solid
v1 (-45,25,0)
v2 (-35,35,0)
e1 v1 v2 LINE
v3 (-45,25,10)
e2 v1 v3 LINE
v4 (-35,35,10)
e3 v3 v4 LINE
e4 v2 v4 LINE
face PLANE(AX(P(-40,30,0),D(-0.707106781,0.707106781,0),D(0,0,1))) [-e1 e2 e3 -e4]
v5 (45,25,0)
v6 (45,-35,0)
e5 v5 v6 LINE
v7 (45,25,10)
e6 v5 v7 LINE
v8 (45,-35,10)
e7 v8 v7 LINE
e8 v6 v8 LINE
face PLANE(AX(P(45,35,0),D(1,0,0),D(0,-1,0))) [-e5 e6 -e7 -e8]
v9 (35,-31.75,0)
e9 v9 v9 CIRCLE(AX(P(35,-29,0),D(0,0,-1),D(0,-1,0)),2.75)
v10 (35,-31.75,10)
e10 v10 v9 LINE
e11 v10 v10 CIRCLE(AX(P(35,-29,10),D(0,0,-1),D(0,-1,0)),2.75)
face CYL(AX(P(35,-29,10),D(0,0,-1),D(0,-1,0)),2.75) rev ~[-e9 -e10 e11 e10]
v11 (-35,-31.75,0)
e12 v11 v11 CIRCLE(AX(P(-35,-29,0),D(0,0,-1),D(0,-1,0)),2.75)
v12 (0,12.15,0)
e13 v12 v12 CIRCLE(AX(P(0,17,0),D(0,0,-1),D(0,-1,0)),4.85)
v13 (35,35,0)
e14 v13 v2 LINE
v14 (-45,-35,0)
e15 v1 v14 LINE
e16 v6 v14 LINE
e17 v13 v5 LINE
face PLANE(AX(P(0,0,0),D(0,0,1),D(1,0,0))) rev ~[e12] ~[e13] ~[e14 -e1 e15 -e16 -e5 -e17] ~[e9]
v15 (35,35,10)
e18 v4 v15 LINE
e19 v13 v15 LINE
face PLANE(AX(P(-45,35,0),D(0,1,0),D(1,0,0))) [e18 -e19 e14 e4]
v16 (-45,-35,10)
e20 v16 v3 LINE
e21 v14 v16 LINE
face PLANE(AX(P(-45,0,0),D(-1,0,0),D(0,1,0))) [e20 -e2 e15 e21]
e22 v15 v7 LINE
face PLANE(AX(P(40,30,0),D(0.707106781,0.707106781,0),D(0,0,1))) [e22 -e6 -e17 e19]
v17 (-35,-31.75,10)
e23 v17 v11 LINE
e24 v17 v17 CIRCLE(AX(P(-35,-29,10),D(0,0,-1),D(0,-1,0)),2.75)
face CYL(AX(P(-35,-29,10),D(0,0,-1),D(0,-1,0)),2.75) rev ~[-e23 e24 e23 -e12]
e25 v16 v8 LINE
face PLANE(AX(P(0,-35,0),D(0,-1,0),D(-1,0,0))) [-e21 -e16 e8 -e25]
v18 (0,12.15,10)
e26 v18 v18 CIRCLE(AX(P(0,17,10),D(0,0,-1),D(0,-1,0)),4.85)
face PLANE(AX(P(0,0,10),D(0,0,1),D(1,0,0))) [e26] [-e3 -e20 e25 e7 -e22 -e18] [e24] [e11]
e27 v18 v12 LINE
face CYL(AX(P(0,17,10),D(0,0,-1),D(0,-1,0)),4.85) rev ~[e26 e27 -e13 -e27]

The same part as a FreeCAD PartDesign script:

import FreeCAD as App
import Part
import Sketcher
from FreeCAD import Vector
Q = App.Units.Quantity


def edges_at(feature, points):
    """Names of the edges that pass closest to the given points."""
    edges = feature.Shape.Edges
    near = lambda p: min(range(len(edges)), key=lambda i: edges[i].distToShape(Part.Vertex(*p))[0])
    return sorted({f"Edge{near(p) + 1}" for p in points})


def add_polygon(sketch, points):
    """Adds a closed chain of lines whose ends are joined by coincident constraints."""
    first, n = sketch.GeometryCount, len(points)
    for a, b in zip(points, points[1:] + points[:1]):
        sketch.addGeometry(Part.LineSegment(App.Vector(*a, 0), App.Vector(*b, 0)), False)
    for i in range(n):
        sketch.addConstraint(Sketcher.Constraint("Coincident", first + i, 2, first + (i + 1) % n, 1))

doc = App.newDocument("Part")
body = doc.addObject("PartDesign::Body", "Body")

sketch1 = body.newObject("Sketcher::SketchObject", "Sketch")
sketch1.AttachmentSupport = (doc.getObject("XY_Plane"), [""])
sketch1.MapMode = "FlatFace"
add_polygon(sketch1, [(-45, 35), (-45, -35), (45, -35), (45, 35)])
sketch1.addConstraint(Sketcher.Constraint("Vertical", 0))
sketch1.addConstraint(Sketcher.Constraint("Horizontal", 1))
sketch1.addConstraint(Sketcher.Constraint("Vertical", 2))
sketch1.addConstraint(Sketcher.Constraint("Horizontal", 3))
sketch1.addConstraint(Sketcher.Constraint("Symmetric", 0, 2, 2, 2, -1, 1))
sketch1.addConstraint(Sketcher.Constraint("DistanceX", 1, 1, 1, 2, Q("90 mm")))
sketch1.addConstraint(Sketcher.Constraint("DistanceY", 0, 2, 0, 1, Q("70 mm")))
pad1 = body.newObject("PartDesign::Pad", "Pad")
pad1.Profile = sketch1
pad1.Length = 10

sketch2 = body.newObject("Sketcher::SketchObject", "Sketch001")
sketch2.AttachmentSupport = (doc.getObject("XY_Plane"), [""])
sketch2.MapMode = "FlatFace"
sketch2.AttachmentOffset = App.Placement(Vector(0, 0, 10), App.Rotation())
sketch2.addGeometry(Part.Circle(Vector(0, 17, 0), Vector(0, 0, 1), 4.8), False)
sketch2.addConstraint(Sketcher.Constraint("PointOnObject", 0, 3, -2))
sketch2.addConstraint(Sketcher.Constraint("Diameter", 0, Q("9.7 mm")))
sketch2.addConstraint(Sketcher.Constraint("DistanceY", -1, 1, 0, 3, Q("17 mm")))
doc.recompute()
hole = body.newObject("PartDesign::Hole", "Hole")
hole.Profile = sketch2
hole.ThreadType = "None"
hole.Diameter = 9.7
hole.DepthType = "ThroughAll"

sketch3 = body.newObject("Sketcher::SketchObject", "Sketch002")
sketch3.AttachmentSupport = (doc.getObject("XY_Plane"), [""])
sketch3.MapMode = "FlatFace"
sketch3.AttachmentOffset = App.Placement(Vector(0, 0, 10), App.Rotation())
sketch3.addGeometry(Part.Circle(Vector(-35, -29, 0), Vector(0, 0, 1), 2.8), False)
sketch3.addGeometry(Part.Circle(Vector(35, -29, 0), Vector(0, 0, 1), 2.8), False)
sketch3.addConstraint(Sketcher.Constraint("Equal", 0, 1))
sketch3.addConstraint(Sketcher.Constraint("Symmetric", 0, 3, 1, 3, -2))
sketch3.addConstraint(Sketcher.Constraint("Diameter", 0, Q("5.5 mm")))
sketch3.addConstraint(Sketcher.Constraint("DistanceX", 0, 3, -1, 1, Q("35 mm")))
sketch3.addConstraint(Sketcher.Constraint("DistanceY", 0, 3, -1, 1, Q("29 mm")))
doc.recompute()
hole2 = body.newObject("PartDesign::Hole", "Hole001")
hole2.Profile = sketch3
hole2.ThreadType = "None"
hole2.Diameter = 5.5
hole2.DepthType = "ThroughAll"
doc.recompute()

chamfer = body.newObject("PartDesign::Chamfer", "Chamfer")
chamfer.Base = (hole2, edges_at(hole2, [(-45, 35, 5), (45, 35, 5)]))
chamfer.Size = 10

doc.recompute()
